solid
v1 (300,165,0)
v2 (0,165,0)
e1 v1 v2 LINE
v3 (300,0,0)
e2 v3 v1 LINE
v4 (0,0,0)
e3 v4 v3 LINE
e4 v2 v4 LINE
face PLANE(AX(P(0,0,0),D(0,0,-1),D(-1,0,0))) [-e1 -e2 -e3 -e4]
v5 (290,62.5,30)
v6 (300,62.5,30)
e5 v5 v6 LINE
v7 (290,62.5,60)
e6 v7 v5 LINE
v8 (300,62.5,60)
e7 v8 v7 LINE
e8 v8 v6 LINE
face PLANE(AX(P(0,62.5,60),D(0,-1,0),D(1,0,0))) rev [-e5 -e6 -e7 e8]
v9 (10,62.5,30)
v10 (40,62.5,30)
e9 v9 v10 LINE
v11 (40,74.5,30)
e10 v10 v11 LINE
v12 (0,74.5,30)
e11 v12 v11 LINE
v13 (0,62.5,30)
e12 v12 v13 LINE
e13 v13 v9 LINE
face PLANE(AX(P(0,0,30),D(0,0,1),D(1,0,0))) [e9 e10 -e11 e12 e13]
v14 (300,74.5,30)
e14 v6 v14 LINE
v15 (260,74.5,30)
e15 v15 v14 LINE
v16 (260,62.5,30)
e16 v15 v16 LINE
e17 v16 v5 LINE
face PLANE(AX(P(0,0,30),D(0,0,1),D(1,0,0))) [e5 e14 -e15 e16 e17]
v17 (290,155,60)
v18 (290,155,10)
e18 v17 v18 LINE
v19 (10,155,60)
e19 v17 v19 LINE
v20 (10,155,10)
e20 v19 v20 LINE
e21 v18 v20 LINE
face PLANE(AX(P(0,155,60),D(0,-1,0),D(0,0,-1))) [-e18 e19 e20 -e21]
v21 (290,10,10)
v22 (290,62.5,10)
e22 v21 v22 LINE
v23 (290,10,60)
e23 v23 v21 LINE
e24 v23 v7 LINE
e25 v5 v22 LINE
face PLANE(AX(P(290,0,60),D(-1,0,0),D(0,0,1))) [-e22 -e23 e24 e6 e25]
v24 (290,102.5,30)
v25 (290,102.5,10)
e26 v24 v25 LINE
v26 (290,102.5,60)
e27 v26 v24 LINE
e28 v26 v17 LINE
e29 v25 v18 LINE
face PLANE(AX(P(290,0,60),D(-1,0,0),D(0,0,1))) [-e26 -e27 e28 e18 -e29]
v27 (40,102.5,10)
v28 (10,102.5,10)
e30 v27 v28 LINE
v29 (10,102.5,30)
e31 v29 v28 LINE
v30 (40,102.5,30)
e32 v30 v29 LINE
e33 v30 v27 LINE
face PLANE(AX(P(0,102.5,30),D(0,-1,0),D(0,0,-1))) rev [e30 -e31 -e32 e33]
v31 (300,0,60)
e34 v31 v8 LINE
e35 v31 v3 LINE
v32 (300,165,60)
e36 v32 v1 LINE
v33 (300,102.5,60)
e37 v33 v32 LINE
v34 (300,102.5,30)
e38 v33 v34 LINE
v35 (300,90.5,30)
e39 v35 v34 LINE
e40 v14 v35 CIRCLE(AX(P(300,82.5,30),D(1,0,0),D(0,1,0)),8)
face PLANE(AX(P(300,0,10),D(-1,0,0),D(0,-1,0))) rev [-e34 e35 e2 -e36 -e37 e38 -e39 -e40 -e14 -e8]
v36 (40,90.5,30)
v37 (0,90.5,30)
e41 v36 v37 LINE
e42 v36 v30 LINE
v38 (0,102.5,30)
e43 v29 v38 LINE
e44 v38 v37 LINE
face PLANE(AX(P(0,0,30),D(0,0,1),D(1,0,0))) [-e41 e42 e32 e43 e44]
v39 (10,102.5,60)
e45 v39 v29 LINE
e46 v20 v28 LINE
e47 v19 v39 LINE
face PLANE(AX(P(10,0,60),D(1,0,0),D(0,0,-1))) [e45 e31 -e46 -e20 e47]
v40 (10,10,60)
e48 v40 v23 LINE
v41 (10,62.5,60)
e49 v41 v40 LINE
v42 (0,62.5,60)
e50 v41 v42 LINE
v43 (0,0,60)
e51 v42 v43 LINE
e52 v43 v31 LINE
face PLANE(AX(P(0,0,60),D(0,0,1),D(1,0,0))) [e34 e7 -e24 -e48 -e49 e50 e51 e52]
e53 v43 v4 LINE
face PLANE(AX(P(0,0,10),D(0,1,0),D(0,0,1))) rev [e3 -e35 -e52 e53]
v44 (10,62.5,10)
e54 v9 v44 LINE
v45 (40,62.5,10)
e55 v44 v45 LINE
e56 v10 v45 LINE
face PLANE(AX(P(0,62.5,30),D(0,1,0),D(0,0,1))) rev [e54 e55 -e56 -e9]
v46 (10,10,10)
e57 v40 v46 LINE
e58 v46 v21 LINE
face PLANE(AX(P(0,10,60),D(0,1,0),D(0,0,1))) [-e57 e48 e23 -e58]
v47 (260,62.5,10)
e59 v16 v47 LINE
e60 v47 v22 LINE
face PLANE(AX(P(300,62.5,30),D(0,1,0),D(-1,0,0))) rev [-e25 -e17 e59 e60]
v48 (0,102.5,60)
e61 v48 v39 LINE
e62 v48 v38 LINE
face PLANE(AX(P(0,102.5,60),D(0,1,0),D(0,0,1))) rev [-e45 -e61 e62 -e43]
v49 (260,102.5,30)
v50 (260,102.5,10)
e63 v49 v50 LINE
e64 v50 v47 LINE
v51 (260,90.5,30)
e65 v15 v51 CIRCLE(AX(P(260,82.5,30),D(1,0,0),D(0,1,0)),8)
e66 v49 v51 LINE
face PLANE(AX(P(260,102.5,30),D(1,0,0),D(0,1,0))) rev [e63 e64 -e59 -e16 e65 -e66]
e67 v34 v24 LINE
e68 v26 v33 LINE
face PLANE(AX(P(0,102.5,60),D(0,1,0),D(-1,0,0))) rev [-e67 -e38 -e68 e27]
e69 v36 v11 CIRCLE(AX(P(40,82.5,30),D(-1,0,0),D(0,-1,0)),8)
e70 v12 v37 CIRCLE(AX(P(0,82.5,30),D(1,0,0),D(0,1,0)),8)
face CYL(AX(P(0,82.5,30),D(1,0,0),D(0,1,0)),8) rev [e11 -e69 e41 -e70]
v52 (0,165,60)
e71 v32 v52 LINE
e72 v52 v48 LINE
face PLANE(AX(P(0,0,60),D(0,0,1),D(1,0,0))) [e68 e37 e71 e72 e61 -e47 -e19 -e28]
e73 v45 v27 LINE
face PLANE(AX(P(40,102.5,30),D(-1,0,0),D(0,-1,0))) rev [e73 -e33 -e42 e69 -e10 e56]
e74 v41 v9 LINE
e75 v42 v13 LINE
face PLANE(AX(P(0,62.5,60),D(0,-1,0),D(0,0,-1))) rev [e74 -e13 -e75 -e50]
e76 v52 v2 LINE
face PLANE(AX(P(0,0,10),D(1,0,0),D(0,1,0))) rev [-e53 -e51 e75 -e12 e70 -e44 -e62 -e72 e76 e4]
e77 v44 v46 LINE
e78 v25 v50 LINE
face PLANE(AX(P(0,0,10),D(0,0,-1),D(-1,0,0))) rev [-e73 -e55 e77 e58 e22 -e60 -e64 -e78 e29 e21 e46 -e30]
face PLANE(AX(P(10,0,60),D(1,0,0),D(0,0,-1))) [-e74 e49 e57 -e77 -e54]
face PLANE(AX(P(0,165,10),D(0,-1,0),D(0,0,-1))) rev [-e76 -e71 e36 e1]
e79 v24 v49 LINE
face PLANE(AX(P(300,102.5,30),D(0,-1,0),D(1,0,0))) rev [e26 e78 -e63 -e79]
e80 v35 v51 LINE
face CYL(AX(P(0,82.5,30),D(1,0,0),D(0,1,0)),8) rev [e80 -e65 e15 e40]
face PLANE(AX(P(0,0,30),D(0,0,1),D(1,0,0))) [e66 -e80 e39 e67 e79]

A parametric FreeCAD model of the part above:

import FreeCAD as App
import Part
import Sketcher
from FreeCAD import Vector


def add_polygon(sketch, points):
    """Adds a closed chain of lines whose ends are joined by coincident constraints."""
    first, n = sketch.GeometryCount, len(points)
    for a, b in zip(points, points[1:] + points[:1]):
        sketch.addGeometry(Part.LineSegment(App.Vector(*a, 0), App.Vector(*b, 0)), False)
    for i in range(n):
        sketch.addConstraint(Sketcher.Constraint("Coincident", first + i, 2, first + (i + 1) % n, 1))

doc = App.newDocument("Part")
body = doc.addObject("PartDesign::Body", "Body")

# Sketch on XY plane
sketch1 = body.newObject("Sketcher::SketchObject", "Sketch")
sketch1.AttachmentSupport = (doc.getObject("XY_Plane"), [""])
sketch1.MapMode = "FlatFace"
add_polygon(sketch1, [(0, 165), (0, 0), (300, 0), (300, 165)])  # lines 0-3
sketch1.addConstraint([
    Sketcher.Constraint("Vertical", 0),
    Sketcher.Constraint("Horizontal", 1),
    Sketcher.Constraint("Vertical", 2),
    Sketcher.Constraint("Horizontal", 3),
    Sketcher.Constraint("Coincident", 0, 2, -1, 1),
    Sketcher.Constraint("DistanceX", 1, 1, 1, 2, 300.0),
    Sketcher.Constraint("DistanceY", 0, 2, 0, 1, 165.0),
])
pad1 = body.newObject("PartDesign::Pad", "Pad")
pad1.Profile = sketch1
pad1.Length = 10

# Sketch on XY plane
sketch2 = body.newObject("Sketcher::SketchObject", "Sketch001")
sketch2.AttachmentSupport = (doc.getObject("XY_Plane"), [""])
sketch2.MapMode = "FlatFace"
sketch2.AttachmentOffset = App.Placement(Vector(0, 0, 10), App.Rotation())
add_polygon(sketch2, [(0, 102), (0, 62), (40, 62), (40, 102)])  # lines 0-3
add_polygon(sketch2, [(260, 102), (260, 62), (300, 62), (300, 102)])  # lines 4-7
sketch2.addConstraint([
    Sketcher.Constraint("Vertical", 0),
    Sketcher.Constraint("Horizontal", 1),
    Sketcher.Constraint("Vertical", 2),
    Sketcher.Constraint("Horizontal", 3),
    Sketcher.Constraint("Vertical", 4),
    Sketcher.Constraint("Horizontal", 5),
    Sketcher.Constraint("Vertical", 6),
    Sketcher.Constraint("Horizontal", 7),
    Sketcher.Constraint("PointOnObject", 0, 2, -2),
    Sketcher.Constraint("Horizontal", 1, 2, 4, 2),
    Sketcher.Constraint("Horizontal", 3, 2, 6, 2),
    Sketcher.Constraint("Equal", 3, 5),
    Sketcher.Constraint("Equal", 7, 0),
    Sketcher.Constraint("DistanceX", 1, 1, 1, 2, 40.0),
    Sketcher.Constraint("DistanceX", -1, 1, 4, 2, 260.0),
    Sketcher.Constraint("DistanceY", -1, 1, 0, 2, 62.5),
])
pad2 = body.newObject("PartDesign::Pad", "Pad001")
pad2.Profile = sketch2
pad2.Length = 20

# Sketch on XY plane
sketch3 = body.newObject("Sketcher::SketchObject", "Sketch002")
sketch3.AttachmentSupport = (doc.getObject("XY_Plane"), [""])
sketch3.MapMode = "FlatFace"
sketch3.AttachmentOffset = App.Placement(Vector(0, 0, 10), App.Rotation())
add_polygon(sketch3, [(0, 165), (0, 102), (10, 102), (10, 155), (290, 155), (290, 102), (300, 102), (300, 165)])  # lines 0-7
add_polygon(sketch3, [(10, 62), (0, 62), (0, 0), (300, 0), (300, 62), (290, 62), (290, 10), (10, 10)])  # lines 8-15
sketch3.addConstraint([
    Sketcher.Constraint("Vertical", 0),
    Sketcher.Constraint("Horizontal", 1),
    Sketcher.Constraint("Vertical", 2),
    Sketcher.Constraint("Horizontal", 3),
    Sketcher.Constraint("Vertical", 4),
    Sketcher.Constraint("Horizontal", 5),
    Sketcher.Constraint("Vertical", 6),
    Sketcher.Constraint("Horizontal", 7),
    Sketcher.Constraint("Horizontal", 8),
    Sketcher.Constraint("Vertical", 9),
    Sketcher.Constraint("Horizontal", 10),
    Sketcher.Constraint("Vertical", 11),
    Sketcher.Constraint("Horizontal", 12),
    Sketcher.Constraint("Vertical", 13),
    Sketcher.Constraint("Horizontal", 14),
    Sketcher.Constraint("Vertical", 15),
    Sketcher.Constraint("Coincident", 9, 2, -1, 1),
    Sketcher.Constraint("PointOnObject", 0, 2, -2),
    Sketcher.Constraint("Horizontal", 1, 2, 4, 2),
    Sketcher.Constraint("Horizontal", 8, 2, 11, 2),
    Sketcher.Constraint("Vertical", 6, 2, 10, 2),
    Sketcher.Constraint("Vertical", 4, 2, 12, 2),
    Sketcher.Constraint("Vertical", 2, 2, 14, 2),
    Sketcher.Constraint("Equal", 1, 5),
    Sketcher.Constraint("Equal", 6, 9),
    Sketcher.Constraint("Equal", 4, 13),
    Sketcher.Constraint("DistanceX", 1, 1, 1, 2, 10.0),
    Sketcher.Constraint("DistanceX", 3, 1, 3, 2, 280.0),
    Sketcher.Constraint("DistanceY", 0, 2, 0, 1, 62.5),
    Sketcher.Constraint("DistanceY", 2, 1, 2, 2, 52.5),
    Sketcher.Constraint("DistanceY", -1, 1, 2, 2, 155.0),
])
pad3 = body.newObject("PartDesign::Pad", "Pad002")
pad3.Profile = sketch3
pad3.Length = 50

# Sketch on YZ plane
sketch4 = body.newObject("Sketcher::SketchObject", "Sketch003")
sketch4.AttachmentSupport = (doc.getObject("YZ_Plane"), [""])
sketch4.MapMode = "FlatFace"
sketch4.AttachmentOffset = App.Placement(Vector(0, 0, 300), App.Rotation())
sketch4.addGeometry(Part.Circle(Vector(82, 30, 0), Vector(0, 0, 1), 8), False)
sketch4.addConstraint([
    Sketcher.Constraint("Diameter", 0, 16.0),
    Sketcher.Constraint("DistanceY", -1, 1, 0, 3, 30.0),
    Sketcher.Constraint("DistanceX", -1, 1, 0, 3, 82.5),
])
pocket1 = body.newObject("PartDesign::Pocket", "Pocket")
pocket1.Profile = sketch4
pocket1.Type = "ThroughAll"

doc.recompute()
